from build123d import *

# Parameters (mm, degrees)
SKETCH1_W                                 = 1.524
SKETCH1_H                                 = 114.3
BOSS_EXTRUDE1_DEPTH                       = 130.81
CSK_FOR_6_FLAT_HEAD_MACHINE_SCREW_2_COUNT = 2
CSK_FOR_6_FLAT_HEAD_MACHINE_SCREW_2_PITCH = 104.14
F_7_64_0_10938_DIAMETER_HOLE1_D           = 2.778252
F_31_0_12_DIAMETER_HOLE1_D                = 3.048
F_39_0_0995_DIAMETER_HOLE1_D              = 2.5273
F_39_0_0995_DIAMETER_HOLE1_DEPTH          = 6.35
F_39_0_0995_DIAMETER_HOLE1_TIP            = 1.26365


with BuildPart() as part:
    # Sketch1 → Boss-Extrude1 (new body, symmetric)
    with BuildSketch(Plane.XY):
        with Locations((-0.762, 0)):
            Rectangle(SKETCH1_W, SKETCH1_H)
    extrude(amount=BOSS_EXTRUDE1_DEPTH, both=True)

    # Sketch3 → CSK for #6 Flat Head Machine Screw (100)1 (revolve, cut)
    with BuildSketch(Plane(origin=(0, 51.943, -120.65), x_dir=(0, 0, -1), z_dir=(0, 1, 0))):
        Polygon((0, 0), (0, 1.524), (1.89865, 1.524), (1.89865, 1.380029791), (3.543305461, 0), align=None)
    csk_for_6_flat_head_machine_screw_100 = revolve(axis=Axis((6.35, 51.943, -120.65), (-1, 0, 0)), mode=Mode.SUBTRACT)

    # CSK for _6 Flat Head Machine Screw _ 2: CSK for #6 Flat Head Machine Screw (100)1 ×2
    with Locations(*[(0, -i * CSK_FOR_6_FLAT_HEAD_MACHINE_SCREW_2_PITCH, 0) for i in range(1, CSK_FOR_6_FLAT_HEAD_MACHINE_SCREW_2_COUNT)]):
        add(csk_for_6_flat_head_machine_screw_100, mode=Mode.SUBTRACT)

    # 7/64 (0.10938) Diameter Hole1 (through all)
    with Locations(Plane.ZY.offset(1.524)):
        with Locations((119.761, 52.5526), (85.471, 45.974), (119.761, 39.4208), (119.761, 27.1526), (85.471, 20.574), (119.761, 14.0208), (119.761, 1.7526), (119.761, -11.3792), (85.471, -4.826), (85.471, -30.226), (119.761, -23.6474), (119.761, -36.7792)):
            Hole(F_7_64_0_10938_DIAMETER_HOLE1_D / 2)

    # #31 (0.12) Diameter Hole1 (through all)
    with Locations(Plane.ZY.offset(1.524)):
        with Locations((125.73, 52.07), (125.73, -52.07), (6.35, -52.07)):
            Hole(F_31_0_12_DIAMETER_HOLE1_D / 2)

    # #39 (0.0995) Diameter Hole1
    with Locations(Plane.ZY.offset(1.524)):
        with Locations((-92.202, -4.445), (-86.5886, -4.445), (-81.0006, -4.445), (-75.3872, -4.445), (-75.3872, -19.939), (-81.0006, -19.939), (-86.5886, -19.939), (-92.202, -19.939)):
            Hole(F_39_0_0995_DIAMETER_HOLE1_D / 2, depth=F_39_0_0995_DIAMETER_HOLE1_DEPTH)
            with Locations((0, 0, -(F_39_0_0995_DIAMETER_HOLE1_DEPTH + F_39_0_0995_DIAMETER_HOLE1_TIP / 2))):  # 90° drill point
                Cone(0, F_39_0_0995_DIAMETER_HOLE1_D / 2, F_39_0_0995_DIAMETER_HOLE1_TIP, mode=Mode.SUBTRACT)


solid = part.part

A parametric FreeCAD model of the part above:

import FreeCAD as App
import Part
import Sketcher
Q = App.Units.Quantity

doc = App.newDocument("Part")
params = doc.addObject("Spreadsheet::Sheet", "Params")
for row, (alias, value) in enumerate([
    ("sketch1_height", "4.5 in"),
    ("sketch1_width", "0.06 in"),
    ("pad1_length", "10.3 in"),
    ("sketch2_width", "0.06 in"),
    ("groove_angle", "360 deg"),
    ("linearpattern_pitch", "4.1 in"),
    ("hole_diameter", "2.778252 mm"),
    ("sketch4_diameter", "0.12 in"),
    ("hole2_diameter", "0.12 in"),
    ("hole3_diameter", "0.0995 in"),
    ("hole3_depth", "0.25 in"),
], start=1):
    params.set(f"A{row}", alias)
    params.set(f"B{row}", "=" + value)
    params.setAlias(f"B{row}", alias)

body = doc.addObject("PartDesign::Body", "Body")

# Sketch on XY plane
sketch1 = body.newObject("Sketcher::SketchObject", "Sketch")
sketch1.AttachmentSupport = (doc.getObject("XY_Plane"), [""])
sketch1.MapMode = "FlatFace"
sketch1.addGeometry([
    Part.LineSegment(App.Vector(-1.524, 57.15, 0), App.Vector(-1.524, -57.15, 0)),
    Part.LineSegment(App.Vector(-1.524, -57.15, 0), App.Vector(0, -57.15, 0)),
    Part.LineSegment(App.Vector(0, -57.15, 0), App.Vector(0, 57.15, 0)),
    Part.LineSegment(App.Vector(0, 57.15, 0), App.Vector(-1.524, 57.15, 0)),
], False)
sketch1.addConstraint([
    Sketcher.Constraint("Coincident", 0, 2, 1, 1),
    Sketcher.Constraint("Coincident", 1, 2, 2, 1),
    Sketcher.Constraint("Coincident", 2, 2, 3, 1),
    Sketcher.Constraint("Coincident", 3, 2, 0, 1),
    Sketcher.Constraint("Vertical", 0),
    Sketcher.Constraint("Horizontal", 1),
    Sketcher.Constraint("Vertical", 2),
    Sketcher.Constraint("Horizontal", 3),
    Sketcher.Constraint("Symmetric", 1, 2, 2, 2, -1, 1),
    Sketcher.Constraint("DistanceY", 0, 2, 0, 1, Q("4.5 in")),
    Sketcher.Constraint("DistanceX", 1, 1, 1, 2, Q("0.06 in")),
])
sketch1.setExpression("Constraints[9]", "Params.sketch1_height")
sketch1.setExpression("Constraints[10]", "Params.sketch1_width")
pad1 = body.newObject("PartDesign::Pad", "Pad")
pad1.Profile = sketch1
pad1.setExpression("Length", "Params.pad1_length")
pad1.Midplane = True

# Sketch on XZ plane
sketch2 = body.newObject("Sketcher::SketchObject", "Sketch001")
sketch2.AttachmentSupport = (doc.getObject("XZ_Plane"), [""])
sketch2.MapMode = "FlatFace"
sketch2.AttachmentOffset = App.Placement(App.Vector(0, 0, -2.045 * 25.4), App.Rotation())
sketch2.addGeometry([
    Part.LineSegment(App.Vector(-1.524, -120.65, 0), App.Vector(0, -120.65, 0)),  # 0
    Part.LineSegment(App.Vector(0, -120.65, 0), App.Vector(0, -124.193305, 0)),  # 1
    Part.LineSegment(App.Vector(0, -124.193305, 0), App.Vector(-1.38003, -122.54865, 0)),  # 2
    Part.LineSegment(App.Vector(-1.38003, -122.54865, 0), App.Vector(-1.524, -122.54865, 0)),  # 3
    Part.LineSegment(App.Vector(-1.524, -122.54865, 0), App.Vector(-1.524, -120.65, 0)),  # 4
], False)
sketch2.addGeometry(Part.LineSegment(App.Vector(0, -120.65, 0), App.Vector(-1.524, -120.65, 0)), True)  # axis
sketch2.addConstraint([
    Sketcher.Constraint("Coincident", 0, 2, 1, 1),
    Sketcher.Constraint("Coincident", 1, 2, 2, 1),
    Sketcher.Constraint("Coincident", 2, 2, 3, 1),
    Sketcher.Constraint("Coincident", 3, 2, 4, 1),
    Sketcher.Constraint("Coincident", 4, 2, 0, 1),
    Sketcher.Constraint("Horizontal", 0),
    Sketcher.Constraint("Vertical", 1),
    Sketcher.Constraint("Horizontal", 3),
    Sketcher.Constraint("Vertical", 4),
    Sketcher.Constraint("Horizontal", 5),
    Sketcher.Constraint("Coincident", 5, 1, 0, 2),
    Sketcher.Constraint("PointOnObject", 0, 2, -2),
    Sketcher.Constraint("Vertical", 3, 2, 5, 2),
    Sketcher.Constraint("Angle", 2, Q("130 deg")),
    Sketcher.Constraint("DistanceX", 0, 1, 0, 2, Q("0.06 in")),
    Sketcher.Constraint("DistanceY", 0, 2, -1, 1, Q("4.75 in")),
    Sketcher.Constraint("DistanceX", 3, 2, 3, 1, Q("0.14397 mm")),
    Sketcher.Constraint("DistanceY", 4, 1, 4, 2, Q("1.89865 mm")),
])
sketch2.setExpression("Constraints[14]", "Params.sketch2_width")
groove = body.newObject("PartDesign::Groove", "Groove")
groove.Profile = sketch2
groove.ReferenceAxis = (sketch2, ["Axis0"])
groove.setExpression("Angle", "Params.groove_angle")
doc.recompute()

linearpattern = body.newObject("PartDesign::LinearPattern", "LinearPattern")
linearpattern.Originals = [groove]
linearpattern.Direction = (doc.getObject("Y_Axis"), [""])
linearpattern.Mode = "offset"
linearpattern.setExpression("Offset", "Params.linearpattern_pitch")
linearpattern.Occurrences = 2
linearpattern.Reversed = True
body.Tip = linearpattern

# Sketch on YZ plane
sketch3 = body.newObject("Sketcher::SketchObject", "Sketch002")
sketch3.AttachmentSupport = (doc.getObject("YZ_Plane"), [""])
sketch3.MapMode = "FlatFace"
sketch3.AttachmentOffset = App.Placement(App.Vector(0, 0, -0.06 * 25.4), App.Rotation())
sketch3.addGeometry([
    Part.Circle(App.Vector(52.5526, 119.761, 0), App.Vector(0, 0, 1), 1.389126),  # 0
    Part.Circle(App.Vector(45.974, 85.471, 0), App.Vector(0, 0, 1), 1.389126),  # 1
    Part.Circle(App.Vector(39.4208, 119.761, 0), App.Vector(0, 0, 1), 1.389126),  # 2
    Part.Circle(App.Vector(27.1526, 119.761, 0), App.Vector(0, 0, 1), 1.389126),  # 3
    Part.Circle(App.Vector(20.574, 85.471, 0), App.Vector(0, 0, 1), 1.389126),  # 4
    Part.Circle(App.Vector(14.0208, 119.761, 0), App.Vector(0, 0, 1), 1.389126),  # 5
    Part.Circle(App.Vector(1.7526, 119.761, 0), App.Vector(0, 0, 1), 1.389126),  # 6
    Part.Circle(App.Vector(-11.3792, 119.761, 0), App.Vector(0, 0, 1), 1.389126),  # 7
    Part.Circle(App.Vector(-4.826, 85.471, 0), App.Vector(0, 0, 1), 1.389126),  # 8
    Part.Circle(App.Vector(-30.226, 85.471, 0), App.Vector(0, 0, 1), 1.389126),  # 9
    Part.Circle(App.Vector(-23.6474, 119.761, 0), App.Vector(0, 0, 1), 1.389126),  # 10
    Part.Circle(App.Vector(-36.7792, 119.761, 0), App.Vector(0, 0, 1), 1.389126),  # 11
], False)
sketch3.addConstraint([
    Sketcher.Constraint("Equal", 0, 1),
    Sketcher.Constraint("Equal", 1, 2),
    Sketcher.Constraint("Equal", 2, 3),
    Sketcher.Constraint("Equal", 3, 4),
    Sketcher.Constraint("Equal", 4, 5),
    Sketcher.Constraint("Equal", 5, 6),
    Sketcher.Constraint("Equal", 6, 7),
    Sketcher.Constraint("Equal", 7, 8),
    Sketcher.Constraint("Equal", 8, 9),
    Sketcher.Constraint("Equal", 9, 10),
    Sketcher.Constraint("Equal", 10, 11),
    Sketcher.Constraint("Horizontal", 0, 3, 2, 3),
    Sketcher.Constraint("Horizontal", 2, 3, 3, 3),
    Sketcher.Constraint("Horizontal", 1, 3, 4, 3),
    Sketcher.Constraint("Horizontal", 3, 3, 5, 3),
    Sketcher.Constraint("Horizontal", 5, 3, 6, 3),
    Sketcher.Constraint("Horizontal", 6, 3, 7, 3),
    Sketcher.Constraint("Horizontal", 4, 3, 8, 3),
    Sketcher.Constraint("Horizontal", 8, 3, 9, 3),
    Sketcher.Constraint("Horizontal", 7, 3, 10, 3),
    Sketcher.Constraint("Horizontal", 10, 3, 11, 3),
    Sketcher.Constraint("DistanceX", 3, 3, 0, 3, Q("1 in")),
    Sketcher.Constraint("DistanceX", 4, 3, 1, 3, Q("1 in")),
    Sketcher.Constraint("DistanceX", 5, 3, 2, 3, Q("1 in")),
    Sketcher.Constraint("DistanceX", 6, 3, 3, 3, Q("1 in")),
    Sketcher.Constraint("DistanceX", 7, 3, 5, 3, Q("1 in")),
    Sketcher.Constraint("DistanceX", 8, 3, 4, 3, Q("1 in")),
    Sketcher.Constraint("DistanceX", 9, 3, 8, 3, Q("1 in")),
    Sketcher.Constraint("DistanceX", 10, 3, 6, 3, Q("1 in")),
    Sketcher.Constraint("DistanceX", 11, 3, 7, 3, Q("1 in")),
    Sketcher.Constraint("DistanceX", -1, 1, 1, 3, Q("1.81 in")),
    Sketcher.Constraint("DistanceY", 1, 3, 0, 3, Q("1.35 in")),
    Sketcher.Constraint("DistanceX", -1, 1, 0, 3, Q("2.069 in")),
    Sketcher.Constraint("DistanceY", -1, 1, 0, 3, Q("4.715 in")),
    Sketcher.Constraint("DistanceX", -1, 1, 2, 3, Q("1.552 in")),
    Sketcher.Constraint("Diameter", 0, Q("2.778252 mm")),
])
doc.recompute()
hole = body.newObject("PartDesign::Hole", "Hole")
hole.Profile = sketch3
hole.ThreadType = "None"
hole.setExpression("Diameter", "Params.hole_diameter")
hole.DepthType = "ThroughAll"
hole.Reversed = True

# Sketch on YZ plane
sketch4 = body.newObject("Sketcher::SketchObject", "Sketch003")
sketch4.AttachmentSupport = (doc.getObject("YZ_Plane"), [""])
sketch4.MapMode = "FlatFace"
sketch4.AttachmentOffset = App.Placement(App.Vector(0, 0, -0.06 * 25.4), App.Rotation())
sketch4.addGeometry([
    Part.Circle(App.Vector(52.07, 125.73, 0), App.Vector(0, 0, 1), 1.524),
    Part.Circle(App.Vector(-52.07, 125.73, 0), App.Vector(0, 0, 1), 1.524),
    Part.Circle(App.Vector(-52.07, 6.35, 0), App.Vector(0, 0, 1), 1.524),
], False)
sketch4.addConstraint([
    Sketcher.Constraint("Equal", 0, 1),
    Sketcher.Constraint("Equal", 1, 2),
    Sketcher.Constraint("Symmetric", 0, 3, 1, 3, -2),
    Sketcher.Constraint("Vertical", 1, 3, 2, 3),
    Sketcher.Constraint("Diameter", 0, Q("0.12 in")),
    Sketcher.Constraint("DistanceX", 1, 3, 0, 3, Q("4.1 in")),
    Sketcher.Constraint("DistanceY", 2, 3, 1, 3, Q("4.7 in")),
    Sketcher.Constraint("DistanceY", -1, 1, 0, 3, Q("4.95 in")),
])
sketch4.setExpression("Constraints[4]", "Params.sketch4_diameter")
doc.recompute()
hole2 = body.newObject("PartDesign::Hole", "Hole001")
hole2.Profile = sketch4
hole2.ThreadType = "None"
hole2.setExpression("Diameter", "Params.hole2_diameter")
hole2.DepthType = "ThroughAll"
hole2.Reversed = True

# Sketch on YZ plane
sketch5 = body.newObject("Sketcher::SketchObject", "Sketch004")
sketch5.AttachmentSupport = (doc.getObject("YZ_Plane"), [""])
sketch5.MapMode = "FlatFace"
sketch5.AttachmentOffset = App.Placement(App.Vector(0, 0, -0.06 * 25.4), App.Rotation())
sketch5.addGeometry([
    Part.Circle(App.Vector(-4.445, -92.202, 0), App.Vector(0, 0, 1), 1.26365),  # 0
    Part.Circle(App.Vector(-4.445, -86.5886, 0), App.Vector(0, 0, 1), 1.26365),  # 1
    Part.Circle(App.Vector(-4.445, -81.0006, 0), App.Vector(0, 0, 1), 1.26365),  # 2
    Part.Circle(App.Vector(-4.445, -75.3872, 0), App.Vector(0, 0, 1), 1.26365),  # 3
    Part.Circle(App.Vector(-19.939, -75.3872, 0), App.Vector(0, 0, 1), 1.26365),  # 4
    Part.Circle(App.Vector(-19.939, -81.0006, 0), App.Vector(0, 0, 1), 1.26365),  # 5
    Part.Circle(App.Vector(-19.939, -86.5886, 0), App.Vector(0, 0, 1), 1.26365),  # 6
    Part.Circle(App.Vector(-19.939, -92.202, 0), App.Vector(0, 0, 1), 1.26365),  # 7
], False)
sketch5.addConstraint([
    Sketcher.Constraint("Equal", 0, 1),
    Sketcher.Constraint("Equal", 1, 2),
    Sketcher.Constraint("Equal", 2, 3),
    Sketcher.Constraint("Equal", 3, 4),
    Sketcher.Constraint("Equal", 4, 5),
    Sketcher.Constraint("Equal", 5, 6),
    Sketcher.Constraint("Equal", 6, 7),
    Sketcher.Constraint("Horizontal", 3, 3, 4, 3),
    Sketcher.Constraint("Horizontal", 2, 3, 5, 3),
    Sketcher.Constraint("Horizontal", 1, 3, 6, 3),
    Sketcher.Constraint("Horizontal", 0, 3, 7, 3),
    Sketcher.Constraint("Vertical", 0, 3, 1, 3),
    Sketcher.Constraint("Vertical", 1, 3, 2, 3),
    Sketcher.Constraint("Vertical", 2, 3, 3, 3),
    Sketcher.Constraint("Vertical", 4, 3, 5, 3),
    Sketcher.Constraint("Vertical", 5, 3, 6, 3),
    Sketcher.Constraint("Vertical", 6, 3, 7, 3),
    Sketcher.Constraint("Diameter", 0, Q("0.0995 in")),
    Sketcher.Constraint("DistanceY", 0, 3, -1, 1, Q("3.63 in")),
    Sketcher.Constraint("DistanceY", 1, 3, 2, 3, Q("0.22 in")),
    Sketcher.Constraint("DistanceX", 4, 3, 3, 3, Q("0.61 in")),
    Sketcher.Constraint("DistanceX", 0, 3, -1, 1, Q("0.175 in")),
    Sketcher.Constraint("DistanceY", 1, 3, -1, 1, Q("3.409 in")),
    Sketcher.Constraint("DistanceY", 3, 3, -1, 1, Q("2.968 in")),
])
doc.recompute()
hole3 = body.newObject("PartDesign::Hole", "Hole002")
hole3.Profile = sketch5
hole3.ThreadType = "None"
hole3.setExpression("Diameter", "Params.hole3_diameter")
hole3.DepthType = "Dimension"
hole3.setExpression("Depth", "Params.hole3_depth")
hole3.DrillPoint = "Angled"
hole3.DrillPointAngle = 90
hole3.Reversed = True

doc.recompute()
